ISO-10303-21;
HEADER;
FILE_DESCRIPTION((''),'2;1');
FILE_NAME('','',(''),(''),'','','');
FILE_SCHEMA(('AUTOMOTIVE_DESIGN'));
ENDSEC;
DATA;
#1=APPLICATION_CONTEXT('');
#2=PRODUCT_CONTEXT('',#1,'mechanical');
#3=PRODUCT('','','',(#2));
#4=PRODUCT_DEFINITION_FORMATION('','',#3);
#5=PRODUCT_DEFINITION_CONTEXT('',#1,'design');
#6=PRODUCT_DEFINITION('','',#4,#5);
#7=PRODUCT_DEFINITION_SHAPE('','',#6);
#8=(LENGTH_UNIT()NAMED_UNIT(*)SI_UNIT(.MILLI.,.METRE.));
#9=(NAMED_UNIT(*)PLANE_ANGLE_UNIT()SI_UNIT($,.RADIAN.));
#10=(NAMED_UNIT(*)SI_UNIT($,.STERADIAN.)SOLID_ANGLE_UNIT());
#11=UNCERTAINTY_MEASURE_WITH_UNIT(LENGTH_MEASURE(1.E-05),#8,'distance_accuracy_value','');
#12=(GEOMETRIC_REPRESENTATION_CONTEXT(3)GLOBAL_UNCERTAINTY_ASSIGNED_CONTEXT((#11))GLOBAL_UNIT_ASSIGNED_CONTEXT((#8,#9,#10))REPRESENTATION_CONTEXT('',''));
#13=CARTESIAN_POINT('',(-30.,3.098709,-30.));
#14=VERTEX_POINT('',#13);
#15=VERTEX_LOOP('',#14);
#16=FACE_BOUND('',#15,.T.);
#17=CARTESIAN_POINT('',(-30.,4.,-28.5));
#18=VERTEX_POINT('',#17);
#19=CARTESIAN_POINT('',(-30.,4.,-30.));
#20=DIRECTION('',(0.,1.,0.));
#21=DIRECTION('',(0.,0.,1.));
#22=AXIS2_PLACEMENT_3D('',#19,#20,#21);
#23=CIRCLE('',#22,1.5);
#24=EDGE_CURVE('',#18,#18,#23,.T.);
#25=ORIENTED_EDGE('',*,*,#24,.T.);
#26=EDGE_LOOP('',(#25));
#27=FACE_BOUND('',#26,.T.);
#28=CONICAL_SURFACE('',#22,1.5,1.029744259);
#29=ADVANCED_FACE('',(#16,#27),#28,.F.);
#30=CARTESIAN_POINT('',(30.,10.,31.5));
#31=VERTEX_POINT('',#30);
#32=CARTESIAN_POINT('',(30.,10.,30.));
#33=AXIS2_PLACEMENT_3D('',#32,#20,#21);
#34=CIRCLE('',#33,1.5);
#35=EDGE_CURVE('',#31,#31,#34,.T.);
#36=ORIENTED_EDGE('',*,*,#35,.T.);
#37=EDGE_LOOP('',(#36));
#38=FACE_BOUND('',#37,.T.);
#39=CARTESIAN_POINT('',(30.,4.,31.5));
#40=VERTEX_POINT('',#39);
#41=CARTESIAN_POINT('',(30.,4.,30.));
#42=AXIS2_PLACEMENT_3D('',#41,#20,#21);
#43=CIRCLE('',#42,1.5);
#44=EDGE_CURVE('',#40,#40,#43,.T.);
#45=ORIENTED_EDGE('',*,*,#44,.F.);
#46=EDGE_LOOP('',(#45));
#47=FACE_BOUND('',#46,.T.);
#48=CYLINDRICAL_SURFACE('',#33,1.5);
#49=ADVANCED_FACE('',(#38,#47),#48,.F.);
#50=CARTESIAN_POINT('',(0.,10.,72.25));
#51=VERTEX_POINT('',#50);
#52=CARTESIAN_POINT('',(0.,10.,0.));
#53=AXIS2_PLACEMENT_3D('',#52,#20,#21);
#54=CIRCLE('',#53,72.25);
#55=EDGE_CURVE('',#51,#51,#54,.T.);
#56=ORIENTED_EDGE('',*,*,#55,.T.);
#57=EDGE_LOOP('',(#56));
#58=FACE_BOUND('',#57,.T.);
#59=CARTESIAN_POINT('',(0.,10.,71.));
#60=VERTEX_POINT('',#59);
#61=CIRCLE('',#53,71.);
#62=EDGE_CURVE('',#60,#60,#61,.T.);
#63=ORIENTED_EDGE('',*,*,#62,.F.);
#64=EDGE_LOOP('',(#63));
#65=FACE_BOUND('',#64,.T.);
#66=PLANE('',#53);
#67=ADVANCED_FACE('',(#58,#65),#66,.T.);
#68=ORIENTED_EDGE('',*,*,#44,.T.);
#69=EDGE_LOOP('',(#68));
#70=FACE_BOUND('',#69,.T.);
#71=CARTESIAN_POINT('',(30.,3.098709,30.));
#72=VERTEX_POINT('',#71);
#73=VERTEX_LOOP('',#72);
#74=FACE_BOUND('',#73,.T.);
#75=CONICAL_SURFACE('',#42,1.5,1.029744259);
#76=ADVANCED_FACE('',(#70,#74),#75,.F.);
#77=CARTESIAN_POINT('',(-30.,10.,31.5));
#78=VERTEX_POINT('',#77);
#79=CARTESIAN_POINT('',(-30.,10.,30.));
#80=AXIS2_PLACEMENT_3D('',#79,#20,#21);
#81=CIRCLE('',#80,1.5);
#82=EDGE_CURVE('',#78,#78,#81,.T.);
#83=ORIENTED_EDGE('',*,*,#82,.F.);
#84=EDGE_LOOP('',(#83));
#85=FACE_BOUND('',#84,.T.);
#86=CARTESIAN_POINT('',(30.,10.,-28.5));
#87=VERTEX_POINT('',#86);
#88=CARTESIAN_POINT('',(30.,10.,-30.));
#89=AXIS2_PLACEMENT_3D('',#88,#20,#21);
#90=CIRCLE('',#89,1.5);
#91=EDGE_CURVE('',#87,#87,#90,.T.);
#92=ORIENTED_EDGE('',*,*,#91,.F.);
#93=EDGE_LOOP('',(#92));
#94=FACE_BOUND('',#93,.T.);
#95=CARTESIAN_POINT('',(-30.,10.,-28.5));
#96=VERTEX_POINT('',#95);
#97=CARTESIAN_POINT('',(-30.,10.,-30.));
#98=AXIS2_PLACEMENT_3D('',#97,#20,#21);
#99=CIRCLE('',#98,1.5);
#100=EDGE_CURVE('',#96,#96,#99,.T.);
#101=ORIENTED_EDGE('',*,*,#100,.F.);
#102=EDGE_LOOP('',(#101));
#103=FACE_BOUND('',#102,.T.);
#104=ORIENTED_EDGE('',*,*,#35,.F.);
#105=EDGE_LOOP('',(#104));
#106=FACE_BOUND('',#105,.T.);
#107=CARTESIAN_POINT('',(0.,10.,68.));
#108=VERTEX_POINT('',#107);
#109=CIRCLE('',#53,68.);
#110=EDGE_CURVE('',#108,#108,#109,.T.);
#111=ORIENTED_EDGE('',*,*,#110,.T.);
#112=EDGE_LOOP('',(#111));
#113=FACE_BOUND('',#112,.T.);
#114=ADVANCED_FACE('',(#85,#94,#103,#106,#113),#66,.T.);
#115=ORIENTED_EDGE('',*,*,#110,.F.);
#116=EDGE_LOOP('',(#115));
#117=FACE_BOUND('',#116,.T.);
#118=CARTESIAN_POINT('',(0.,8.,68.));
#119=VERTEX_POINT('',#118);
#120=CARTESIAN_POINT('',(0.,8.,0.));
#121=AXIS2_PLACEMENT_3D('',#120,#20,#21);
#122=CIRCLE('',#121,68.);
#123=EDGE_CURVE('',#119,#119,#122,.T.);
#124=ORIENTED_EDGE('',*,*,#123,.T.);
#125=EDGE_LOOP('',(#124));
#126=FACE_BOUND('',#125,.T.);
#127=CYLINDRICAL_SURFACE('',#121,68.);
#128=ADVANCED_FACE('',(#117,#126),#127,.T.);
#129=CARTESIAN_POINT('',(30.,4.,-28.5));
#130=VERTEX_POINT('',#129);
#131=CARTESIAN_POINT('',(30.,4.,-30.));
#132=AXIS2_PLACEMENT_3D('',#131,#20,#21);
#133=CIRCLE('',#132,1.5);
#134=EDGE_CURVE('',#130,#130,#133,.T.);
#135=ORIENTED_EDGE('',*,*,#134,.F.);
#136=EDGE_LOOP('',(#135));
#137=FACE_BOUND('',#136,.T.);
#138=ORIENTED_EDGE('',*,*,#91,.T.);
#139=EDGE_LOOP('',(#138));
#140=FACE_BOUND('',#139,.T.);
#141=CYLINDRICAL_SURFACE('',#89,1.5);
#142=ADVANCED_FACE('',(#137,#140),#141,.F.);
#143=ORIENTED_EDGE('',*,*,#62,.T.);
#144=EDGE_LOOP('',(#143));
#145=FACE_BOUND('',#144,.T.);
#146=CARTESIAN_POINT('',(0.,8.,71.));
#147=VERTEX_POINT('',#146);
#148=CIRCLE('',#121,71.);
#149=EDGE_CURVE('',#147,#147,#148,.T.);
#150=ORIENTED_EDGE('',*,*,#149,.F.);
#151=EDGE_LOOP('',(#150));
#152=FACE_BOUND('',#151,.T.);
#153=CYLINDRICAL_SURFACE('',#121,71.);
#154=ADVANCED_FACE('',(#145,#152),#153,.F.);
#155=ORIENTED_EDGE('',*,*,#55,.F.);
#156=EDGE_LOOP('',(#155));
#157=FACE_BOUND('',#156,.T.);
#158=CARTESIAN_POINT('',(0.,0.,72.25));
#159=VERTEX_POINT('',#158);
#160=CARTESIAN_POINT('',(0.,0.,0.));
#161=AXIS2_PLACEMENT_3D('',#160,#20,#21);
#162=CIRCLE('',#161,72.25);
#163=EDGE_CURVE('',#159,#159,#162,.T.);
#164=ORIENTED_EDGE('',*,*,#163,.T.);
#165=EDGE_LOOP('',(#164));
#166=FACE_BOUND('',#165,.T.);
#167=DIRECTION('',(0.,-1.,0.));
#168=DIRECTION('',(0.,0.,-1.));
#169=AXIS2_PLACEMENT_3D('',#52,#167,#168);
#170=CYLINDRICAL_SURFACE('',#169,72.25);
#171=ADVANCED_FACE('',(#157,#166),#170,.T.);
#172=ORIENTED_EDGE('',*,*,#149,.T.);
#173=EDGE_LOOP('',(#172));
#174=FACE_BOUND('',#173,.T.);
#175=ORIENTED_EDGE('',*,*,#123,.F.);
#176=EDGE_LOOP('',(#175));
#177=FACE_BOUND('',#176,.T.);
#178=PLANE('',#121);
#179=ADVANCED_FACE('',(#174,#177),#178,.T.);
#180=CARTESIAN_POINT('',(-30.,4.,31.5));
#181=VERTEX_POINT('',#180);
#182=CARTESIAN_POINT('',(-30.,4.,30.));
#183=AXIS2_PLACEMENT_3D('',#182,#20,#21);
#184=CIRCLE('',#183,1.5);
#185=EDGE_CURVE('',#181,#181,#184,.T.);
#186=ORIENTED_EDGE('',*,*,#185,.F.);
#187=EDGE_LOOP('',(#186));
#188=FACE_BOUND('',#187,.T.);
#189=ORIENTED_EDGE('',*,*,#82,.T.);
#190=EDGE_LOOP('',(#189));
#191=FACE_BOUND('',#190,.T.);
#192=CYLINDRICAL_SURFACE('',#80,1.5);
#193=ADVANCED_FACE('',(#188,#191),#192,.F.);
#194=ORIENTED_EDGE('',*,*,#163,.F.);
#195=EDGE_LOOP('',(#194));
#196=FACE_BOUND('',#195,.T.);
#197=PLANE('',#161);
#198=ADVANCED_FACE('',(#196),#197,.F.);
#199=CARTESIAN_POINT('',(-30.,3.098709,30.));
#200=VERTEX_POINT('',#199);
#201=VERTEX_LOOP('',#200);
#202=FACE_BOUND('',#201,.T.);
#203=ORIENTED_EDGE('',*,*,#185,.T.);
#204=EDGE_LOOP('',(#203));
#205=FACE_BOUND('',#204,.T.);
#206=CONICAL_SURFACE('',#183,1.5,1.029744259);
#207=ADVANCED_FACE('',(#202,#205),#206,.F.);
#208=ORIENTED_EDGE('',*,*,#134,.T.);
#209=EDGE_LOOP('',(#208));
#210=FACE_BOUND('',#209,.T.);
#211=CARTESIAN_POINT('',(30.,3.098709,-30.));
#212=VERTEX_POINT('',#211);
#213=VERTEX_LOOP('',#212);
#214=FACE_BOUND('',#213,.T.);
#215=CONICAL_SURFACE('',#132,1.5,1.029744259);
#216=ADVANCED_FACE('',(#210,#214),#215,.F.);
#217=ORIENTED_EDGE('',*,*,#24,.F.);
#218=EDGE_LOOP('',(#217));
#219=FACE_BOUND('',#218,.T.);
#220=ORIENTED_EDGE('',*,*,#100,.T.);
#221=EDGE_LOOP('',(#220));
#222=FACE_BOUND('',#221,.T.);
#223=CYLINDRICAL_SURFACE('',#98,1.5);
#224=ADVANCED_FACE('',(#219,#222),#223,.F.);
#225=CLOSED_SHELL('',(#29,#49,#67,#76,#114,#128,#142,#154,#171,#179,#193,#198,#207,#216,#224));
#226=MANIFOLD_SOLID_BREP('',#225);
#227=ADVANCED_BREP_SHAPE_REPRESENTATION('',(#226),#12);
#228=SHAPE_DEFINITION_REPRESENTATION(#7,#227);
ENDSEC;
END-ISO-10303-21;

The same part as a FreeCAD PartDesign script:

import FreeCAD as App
import Part
import Sketcher

V = App.Vector
Q = App.Units.Quantity

doc = App.newDocument("Part")
body = doc.addObject("PartDesign::Body", "Body")

sketch1 = body.newObject("Sketcher::SketchObject", "Sketch")
sketch1.AttachmentSupport = (doc.getObject("XZ_Plane"), [""])
sketch1.MapMode = "FlatFace"
sketch1.addGeometry(Part.Circle(V(0, 0, 0), V(0, 0, 1), 72), False)
sketch1.addConstraint([
    Sketcher.Constraint("Coincident", 0, 3, -1, 1),
    Sketcher.Constraint("Diameter", 0, Q("144.5 mm")),
])
pad1 = body.newObject("PartDesign::Pad", "Pad")
pad1.Profile = sketch1
pad1.Length = 10
pad1.Reversed = True

sketch2 = body.newObject("Sketcher::SketchObject", "Sketch001")
sketch2.AttachmentSupport = (doc.getObject("XZ_Plane"), [""])
sketch2.MapMode = "FlatFace"
sketch2.AttachmentOffset = App.Placement(V(0, 0, -10), App.Rotation())
sketch2.addGeometry([
    Part.Circle(V(-30, -30, 0), V(0, 0, 1), 1.5),
    Part.Circle(V(-30, 30, 0), V(0, 0, 1), 1.5),
    Part.Circle(V(30, 30, 0), V(0, 0, 1), 1.5),
    Part.Circle(V(30, -30, 0), V(0, 0, 1), 1.5),
], False)
sketch2.addConstraint([
    Sketcher.Constraint("Equal", 0, 1),
    Sketcher.Constraint("Equal", 1, 2),
    Sketcher.Constraint("Equal", 2, 3),
    Sketcher.Constraint("Symmetric", 0, 3, 2, 3, -1, 1),
    Sketcher.Constraint("Symmetric", 1, 3, 3, 3, -1, 1),
    Sketcher.Constraint("Symmetric", 1, 3, 2, 3, -2),
    Sketcher.Constraint("Diameter", 0, Q("3 mm")),
    Sketcher.Constraint("DistanceX", 0, 3, -1, 1, Q("30 mm")),
    Sketcher.Constraint("DistanceY", 0, 3, -1, 1, Q("30 mm")),
])
doc.recompute()
hole = body.newObject("PartDesign::Hole", "Hole")
hole.Profile = sketch2
hole.ThreadType = "None"
hole.Diameter = 3
hole.DepthType = "Dimension"
hole.Depth = 6
hole.DrillPoint = "Angled"
hole.DrillPointAngle = 118
hole.Reversed = True

sketch3 = body.newObject("Sketcher::SketchObject", "Sketch002")
sketch3.AttachmentSupport = (doc.getObject("XZ_Plane"), [""])
sketch3.MapMode = "FlatFace"
sketch3.AttachmentOffset = App.Placement(V(0, 0, -10), App.Rotation())
sketch3.addGeometry([
    Part.Circle(V(0, 0, 0), V(0, 0, 1), 71),
    Part.Circle(V(0, 0, 0), V(0, 0, 1), 68),
], False)
sketch3.addConstraint([
    Sketcher.Constraint("Coincident", 0, 3, -1, 1),
    Sketcher.Constraint("Coincident", 1, 3, -1, 1),
    Sketcher.Constraint("Diameter", 0, Q("142 mm")),
    Sketcher.Constraint("Diameter", 1, Q("136 mm")),
])
pocket1 = body.newObject("PartDesign::Pocket", "Pocket")
pocket1.Profile = sketch3
pocket1.Length = 2
pocket1.Reversed = True

doc.recompute()
